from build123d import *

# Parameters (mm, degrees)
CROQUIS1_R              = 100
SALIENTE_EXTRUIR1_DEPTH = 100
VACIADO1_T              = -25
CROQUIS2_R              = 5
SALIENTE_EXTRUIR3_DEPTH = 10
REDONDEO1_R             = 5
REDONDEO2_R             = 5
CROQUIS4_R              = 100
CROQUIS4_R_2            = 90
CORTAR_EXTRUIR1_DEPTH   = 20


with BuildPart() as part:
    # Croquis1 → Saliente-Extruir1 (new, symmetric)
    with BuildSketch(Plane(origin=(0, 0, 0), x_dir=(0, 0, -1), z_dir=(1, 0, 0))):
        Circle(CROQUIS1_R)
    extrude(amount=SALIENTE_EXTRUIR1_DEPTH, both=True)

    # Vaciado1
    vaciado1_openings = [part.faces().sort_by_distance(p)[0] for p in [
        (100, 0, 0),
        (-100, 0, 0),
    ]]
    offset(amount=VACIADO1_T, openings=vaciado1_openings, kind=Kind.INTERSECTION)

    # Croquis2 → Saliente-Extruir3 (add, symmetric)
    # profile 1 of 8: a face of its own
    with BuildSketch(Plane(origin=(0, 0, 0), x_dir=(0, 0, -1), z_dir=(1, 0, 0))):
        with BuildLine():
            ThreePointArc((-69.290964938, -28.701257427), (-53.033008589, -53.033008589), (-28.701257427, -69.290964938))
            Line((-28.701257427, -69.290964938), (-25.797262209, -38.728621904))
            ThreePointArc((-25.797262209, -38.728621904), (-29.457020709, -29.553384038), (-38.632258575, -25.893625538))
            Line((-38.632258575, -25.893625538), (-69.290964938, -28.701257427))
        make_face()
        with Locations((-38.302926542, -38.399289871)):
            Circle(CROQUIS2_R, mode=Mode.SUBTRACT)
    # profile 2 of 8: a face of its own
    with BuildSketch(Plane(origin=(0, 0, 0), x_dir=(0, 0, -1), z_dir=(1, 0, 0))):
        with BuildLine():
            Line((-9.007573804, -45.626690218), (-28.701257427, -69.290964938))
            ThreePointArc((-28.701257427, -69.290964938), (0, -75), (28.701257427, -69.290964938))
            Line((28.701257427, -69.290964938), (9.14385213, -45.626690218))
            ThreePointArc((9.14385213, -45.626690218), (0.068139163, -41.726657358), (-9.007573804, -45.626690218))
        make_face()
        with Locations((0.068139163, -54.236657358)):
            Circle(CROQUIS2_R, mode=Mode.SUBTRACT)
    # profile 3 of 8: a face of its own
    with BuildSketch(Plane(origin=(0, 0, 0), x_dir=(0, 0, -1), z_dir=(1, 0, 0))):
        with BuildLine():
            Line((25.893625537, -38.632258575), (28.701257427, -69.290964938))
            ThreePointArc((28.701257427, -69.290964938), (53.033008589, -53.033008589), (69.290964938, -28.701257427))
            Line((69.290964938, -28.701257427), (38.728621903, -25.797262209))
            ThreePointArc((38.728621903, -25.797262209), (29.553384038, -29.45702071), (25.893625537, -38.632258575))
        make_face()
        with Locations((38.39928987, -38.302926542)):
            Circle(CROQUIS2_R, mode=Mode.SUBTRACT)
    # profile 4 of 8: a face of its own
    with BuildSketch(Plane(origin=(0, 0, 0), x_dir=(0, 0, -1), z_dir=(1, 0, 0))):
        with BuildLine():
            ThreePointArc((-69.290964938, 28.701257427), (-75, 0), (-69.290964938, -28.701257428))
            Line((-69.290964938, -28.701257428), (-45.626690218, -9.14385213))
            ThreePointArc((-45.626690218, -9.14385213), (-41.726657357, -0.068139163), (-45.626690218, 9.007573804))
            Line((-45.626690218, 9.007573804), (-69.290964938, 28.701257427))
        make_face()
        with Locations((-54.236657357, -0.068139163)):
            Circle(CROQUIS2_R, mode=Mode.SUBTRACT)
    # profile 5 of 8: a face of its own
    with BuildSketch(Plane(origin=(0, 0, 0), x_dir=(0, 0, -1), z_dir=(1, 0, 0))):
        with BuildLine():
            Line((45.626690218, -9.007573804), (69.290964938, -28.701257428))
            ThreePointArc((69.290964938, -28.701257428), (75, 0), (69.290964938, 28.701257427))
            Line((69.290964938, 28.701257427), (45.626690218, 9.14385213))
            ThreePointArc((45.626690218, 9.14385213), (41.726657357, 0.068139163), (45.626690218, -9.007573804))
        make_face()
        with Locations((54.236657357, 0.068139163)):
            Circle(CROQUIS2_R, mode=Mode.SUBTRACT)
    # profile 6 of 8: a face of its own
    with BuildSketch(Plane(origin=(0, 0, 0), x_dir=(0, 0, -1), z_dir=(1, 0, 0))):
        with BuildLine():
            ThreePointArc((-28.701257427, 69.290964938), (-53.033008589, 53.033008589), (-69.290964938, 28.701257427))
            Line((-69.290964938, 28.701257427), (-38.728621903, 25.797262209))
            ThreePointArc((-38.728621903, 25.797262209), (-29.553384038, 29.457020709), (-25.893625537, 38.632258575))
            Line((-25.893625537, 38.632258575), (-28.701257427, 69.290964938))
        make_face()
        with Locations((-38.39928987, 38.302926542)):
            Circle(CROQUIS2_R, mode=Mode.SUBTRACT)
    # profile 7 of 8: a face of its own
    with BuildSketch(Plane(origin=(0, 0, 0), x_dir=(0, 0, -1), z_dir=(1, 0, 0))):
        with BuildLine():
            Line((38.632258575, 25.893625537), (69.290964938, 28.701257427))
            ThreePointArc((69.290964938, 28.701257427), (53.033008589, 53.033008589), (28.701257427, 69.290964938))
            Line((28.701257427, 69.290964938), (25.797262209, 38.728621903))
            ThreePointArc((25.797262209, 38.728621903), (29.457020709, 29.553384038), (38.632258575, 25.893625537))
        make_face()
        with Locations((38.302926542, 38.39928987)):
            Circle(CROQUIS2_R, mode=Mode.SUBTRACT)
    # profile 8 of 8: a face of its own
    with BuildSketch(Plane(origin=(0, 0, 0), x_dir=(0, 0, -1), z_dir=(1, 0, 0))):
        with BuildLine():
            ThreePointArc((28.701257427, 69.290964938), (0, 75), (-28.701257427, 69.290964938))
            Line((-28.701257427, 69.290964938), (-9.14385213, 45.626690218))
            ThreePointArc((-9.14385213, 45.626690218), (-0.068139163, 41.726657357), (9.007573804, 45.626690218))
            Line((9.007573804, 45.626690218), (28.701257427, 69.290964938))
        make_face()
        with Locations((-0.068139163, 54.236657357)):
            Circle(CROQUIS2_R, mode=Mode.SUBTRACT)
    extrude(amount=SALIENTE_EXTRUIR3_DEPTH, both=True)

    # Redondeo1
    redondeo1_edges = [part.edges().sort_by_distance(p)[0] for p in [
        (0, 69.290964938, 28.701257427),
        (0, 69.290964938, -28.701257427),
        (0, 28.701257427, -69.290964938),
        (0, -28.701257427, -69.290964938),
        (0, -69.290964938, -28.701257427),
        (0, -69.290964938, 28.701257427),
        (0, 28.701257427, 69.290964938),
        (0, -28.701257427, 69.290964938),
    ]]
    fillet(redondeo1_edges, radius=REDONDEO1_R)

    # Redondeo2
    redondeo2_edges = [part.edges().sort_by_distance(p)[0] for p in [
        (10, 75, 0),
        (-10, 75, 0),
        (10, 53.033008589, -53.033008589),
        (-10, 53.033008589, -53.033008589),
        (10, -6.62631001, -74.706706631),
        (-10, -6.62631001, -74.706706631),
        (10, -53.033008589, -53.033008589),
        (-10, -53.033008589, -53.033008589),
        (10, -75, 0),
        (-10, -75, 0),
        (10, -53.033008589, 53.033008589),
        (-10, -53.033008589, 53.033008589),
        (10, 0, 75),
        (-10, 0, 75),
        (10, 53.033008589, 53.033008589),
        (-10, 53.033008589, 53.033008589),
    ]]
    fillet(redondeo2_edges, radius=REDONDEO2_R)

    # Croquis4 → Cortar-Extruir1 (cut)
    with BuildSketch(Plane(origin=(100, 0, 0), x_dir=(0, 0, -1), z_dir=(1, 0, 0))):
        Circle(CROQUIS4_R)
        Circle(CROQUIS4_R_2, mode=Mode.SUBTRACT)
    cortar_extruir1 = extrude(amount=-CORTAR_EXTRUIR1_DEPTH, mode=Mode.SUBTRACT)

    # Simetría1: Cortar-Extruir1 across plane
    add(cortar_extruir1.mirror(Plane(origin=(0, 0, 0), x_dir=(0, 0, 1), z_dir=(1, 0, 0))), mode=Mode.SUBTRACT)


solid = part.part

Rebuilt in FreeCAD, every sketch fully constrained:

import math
import FreeCAD as App
import Part
import Sketcher

V = App.Vector


def edges_at(feature, points):
    """Names of the edges that pass closest to the given points."""
    edges = feature.Shape.Edges
    near = lambda p: min(range(len(edges)), key=lambda i: edges[i].distToShape(Part.Vertex(*p))[0])
    return sorted({f"Edge{near(p) + 1}" for p in points})


def faces_at(feature, points):
    """Names of the faces that lie closest to the given points."""
    faces = feature.Shape.Faces
    near = lambda p: min(range(len(faces)), key=lambda i: faces[i].distToShape(Part.Vertex(*p))[0])
    return sorted({f"Face{near(p) + 1}" for p in points})

doc = App.newDocument("Part")
params = doc.addObject("Spreadsheet::Sheet", "Params")
for row, (alias, value) in enumerate([
    ("sketch1_diameter", "200 mm"),
    ("pad1_length", "200 mm"),
    ("thickness_wall", "25 mm"),
    ("sketch2_diameter", "10 mm"),
    ("sketch2_radius", "75 mm"),
    ("sketch2_radius2", "12.51 mm"),
    ("sketch2_length", "30.7 mm"),
    ("pad2_length", "20 mm"),
    ("fillet_radius", "5 mm"),
    ("fillet2_radius", "5 mm"),
    ("sketch3_diameter", "200 mm"),
    ("sketch3_diameter2", "180 mm"),
    ("pocket1_length", "20 mm"),
], start=1):
    params.set(f"A{row}", alias)
    params.set(f"B{row}", "=" + value)
    params.setAlias(f"B{row}", alias)

body = doc.addObject("PartDesign::Body", "Body")

# Sketch on YZ plane
sketch1 = body.newObject("Sketcher::SketchObject", "Sketch")
sketch1.AttachmentSupport = (doc.getObject("YZ_Plane"), [""])
sketch1.MapMode = "FlatFace"
sketch1.addGeometry(Part.Circle(V(0, 0, 0), V(0, 0, 1), 100), False)
sketch1.addConstraint([
    Sketcher.Constraint("Coincident", 0, 3, -1, 1),
    Sketcher.Constraint("Diameter", 0, 200.0),
])
sketch1.setExpression("Constraints[1]", "Params.sketch1_diameter")
pad1 = body.newObject("PartDesign::Pad", "Pad")
pad1.Profile = sketch1
pad1.setExpression("Length", "Params.pad1_length")
pad1.Midplane = True
doc.recompute()

thickness = body.newObject("PartDesign::Thickness", "Thickness")
thickness.Base = (pad1, faces_at(pad1, [(100, 0, 0), (-100, 0, 0)]))
thickness.setExpression("Value", "Params.thickness_wall")
thickness.Reversed = True
thickness.Join = "Intersection"

# Sketch on YZ plane
sketch2 = body.newObject("Sketcher::SketchObject", "Sketch001")
sketch2.AttachmentSupport = (doc.getObject("YZ_Plane"), [""])
sketch2.MapMode = "FlatFace"
sketch2.addGeometry([
    Part.ArcOfCircle(Part.Circle(V(0, 0, 0), V(0, 0, 1), 75), math.radians(112), math.radians(158)),  # 0
    Part.LineSegment(V(-69, 29, 0), V(-39, 26, 0)),  # 1
    Part.ArcOfCircle(Part.Circle(V(-38, 38, 0), V(0, 0, 1), 13), math.radians(-92), math.radians(2)),  # 2
    Part.LineSegment(V(-26, 39, 0), V(-29, 69, 0)),  # 3
    Part.Circle(V(-38, 38, 0), V(0, 0, 1), 5),  # 4
    Part.LineSegment(V(-46, 9, 0), V(-69, 29, 0)),  # 5
    Part.ArcOfCircle(Part.Circle(V(0, 0, 0), V(0, 0, 1), 75), math.radians(157), math.radians(203)),  # 6
    Part.LineSegment(V(-69, -29, 0), V(-46, -9, 0)),  # 7
    Part.ArcOfCircle(Part.Circle(V(-54, 0, 0), V(0, 0, 1), 13), math.radians(-47), math.radians(47)),  # 8
    Part.Circle(V(-54, 0, 0), V(0, 0, 1), 5),  # 9
    Part.LineSegment(V(-39, -26, 0), V(-69, -29, 0)),  # 10
    Part.ArcOfCircle(Part.Circle(V(0, 0, 0), V(0, 0, 1), 75), math.radians(-158), math.radians(-112)),  # 11
    Part.LineSegment(V(-29, -69, 0), V(-26, -39, 0)),  # 12
    Part.ArcOfCircle(Part.Circle(V(-38, -38, 0), V(0, 0, 1), 13), math.radians(-2), math.radians(92)),  # 13
    Part.Circle(V(-38, -38, 0), V(0, 0, 1), 5),  # 14
    Part.ArcOfCircle(Part.Circle(V(0, 0, 0), V(0, 0, 1), 75), math.radians(67), math.radians(113)),  # 15
    Part.LineSegment(V(-29, 69, 0), V(-9, 46, 0)),  # 16
    Part.ArcOfCircle(Part.Circle(V(0, 54, 0), V(0, 0, 1), 13), math.radians(-137), math.radians(-43)),  # 17
    Part.LineSegment(V(9, 46, 0), V(29, 69, 0)),  # 18
    Part.Circle(V(0, 54, 0), V(0, 0, 1), 5),  # 19
    Part.LineSegment(V(-9, -46, 0), V(-29, -69, 0)),  # 20
    Part.ArcOfCircle(Part.Circle(V(0, 0, 0), V(0, 0, 1), 75), math.radians(-113), math.radians(-67)),  # 21
    Part.LineSegment(V(29, -69, 0), V(9, -46, 0)),  # 22
    Part.ArcOfCircle(Part.Circle(V(0, -54, 0), V(0, 0, 1), 13), math.radians(43), math.radians(137)),  # 23
    Part.Circle(V(0, -54, 0), V(0, 0, 1), 5),  # 24
    Part.ArcOfCircle(Part.Circle(V(0, 0, 0), V(0, 0, 1), 75), math.radians(22), math.radians(68)),  # 25
    Part.LineSegment(V(29, 69, 0), V(26, 39, 0)),  # 26
    Part.ArcOfCircle(Part.Circle(V(38, 38, 0), V(0, 0, 1), 13), math.radians(178), math.radians(272)),  # 27
    Part.LineSegment(V(39, 26, 0), V(69, 29, 0)),  # 28
    Part.Circle(V(38, 38, 0), V(0, 0, 1), 5),  # 29
    Part.LineSegment(V(26, -39, 0), V(29, -69, 0)),  # 30
    Part.ArcOfCircle(Part.Circle(V(0, 0, 0), V(0, 0, 1), 75), math.radians(-68), math.radians(-22)),  # 31
    Part.LineSegment(V(69, -29, 0), V(39, -26, 0)),  # 32
    Part.ArcOfCircle(Part.Circle(V(38, -38, 0), V(0, 0, 1), 13), math.radians(88), math.radians(182)),  # 33
    Part.Circle(V(38, -38, 0), V(0, 0, 1), 5),  # 34
    Part.ArcOfCircle(Part.Circle(V(0, 0, 0), V(0, 0, 1), 75), math.radians(-23), math.radians(23)),  # 35
    Part.LineSegment(V(69, 29, 0), V(46, 9, 0)),  # 36
    Part.ArcOfCircle(Part.Circle(V(54, 0, 0), V(0, 0, 1), 13), math.radians(133), math.radians(227)),  # 37
    Part.LineSegment(V(46, -9, 0), V(69, -29, 0)),  # 38
    Part.Circle(V(54, 0, 0), V(0, 0, 1), 5),  # 39
], False)
sketch2.addConstraint([
    Sketcher.Constraint("Coincident", 0, 2, 1, 1),
    Sketcher.Constraint("Coincident", 1, 2, 2, 1),
    Sketcher.Constraint("Coincident", 2, 2, 3, 1),
    Sketcher.Constraint("Coincident", 3, 2, 0, 1),
    Sketcher.Constraint("Coincident", 5, 2, 6, 1),
    Sketcher.Constraint("Coincident", 6, 2, 7, 1),
    Sketcher.Constraint("Coincident", 7, 2, 8, 1),
    Sketcher.Constraint("Coincident", 8, 2, 5, 1),
    Sketcher.Constraint("Coincident", 10, 2, 11, 1),
    Sketcher.Constraint("Coincident", 11, 2, 12, 1),
    Sketcher.Constraint("Coincident", 12, 2, 13, 1),
    Sketcher.Constraint("Coincident", 13, 2, 10, 1),
    Sketcher.Constraint("Coincident", 15, 2, 16, 1),
    Sketcher.Constraint("Coincident", 16, 2, 17, 1),
    Sketcher.Constraint("Coincident", 17, 2, 18, 1),
    Sketcher.Constraint("Coincident", 18, 2, 15, 1),
    Sketcher.Constraint("Coincident", 20, 2, 21, 1),
    Sketcher.Constraint("Coincident", 21, 2, 22, 1),
    Sketcher.Constraint("Coincident", 22, 2, 23, 1),
    Sketcher.Constraint("Coincident", 23, 2, 20, 1),
    Sketcher.Constraint("Coincident", 25, 2, 26, 1),
    Sketcher.Constraint("Coincident", 26, 2, 27, 1),
    Sketcher.Constraint("Coincident", 27, 2, 28, 1),
    Sketcher.Constraint("Coincident", 28, 2, 25, 1),
    Sketcher.Constraint("Coincident", 30, 2, 31, 1),
    Sketcher.Constraint("Coincident", 31, 2, 32, 1),
    Sketcher.Constraint("Coincident", 32, 2, 33, 1),
    Sketcher.Constraint("Coincident", 33, 2, 30, 1),
    Sketcher.Constraint("Coincident", 35, 2, 36, 1),
    Sketcher.Constraint("Coincident", 36, 2, 37, 1),
    Sketcher.Constraint("Coincident", 37, 2, 38, 1),
    Sketcher.Constraint("Coincident", 38, 2, 35, 1),
    Sketcher.Constraint("Coincident", 0, 3, -1, 1),
    Sketcher.Constraint("Coincident", 6, 3, -1, 1),
    Sketcher.Constraint("Coincident", 11, 3, -1, 1),
    Sketcher.Constraint("Coincident", 15, 3, -1, 1),
    Sketcher.Constraint("Coincident", 21, 3, -1, 1),
    Sketcher.Constraint("Coincident", 25, 3, -1, 1),
    Sketcher.Constraint("Coincident", 31, 3, -1, 1),
    Sketcher.Constraint("Coincident", 35, 3, -1, 1),
    Sketcher.Constraint("Coincident", 4, 3, 2, 3),
    Sketcher.Constraint("Coincident", 9, 3, 8, 3),
    Sketcher.Constraint("Coincident", 14, 3, 13, 3),
    Sketcher.Constraint("Coincident", 19, 3, 17, 3),
    Sketcher.Constraint("Coincident", 24, 3, 23, 3),
    Sketcher.Constraint("Coincident", 29, 3, 27, 3),
    Sketcher.Constraint("Coincident", 34, 3, 33, 3),
    Sketcher.Constraint("Coincident", 39, 3, 37, 3),
    Sketcher.Constraint("Coincident", 5, 2, 0, 2),
    Sketcher.Constraint("Coincident", 10, 2, 6, 2),
    Sketcher.Constraint("Coincident", 15, 2, 3, 2),
    Sketcher.Constraint("Coincident", 20, 2, 11, 2),
    Sketcher.Constraint("Coincident", 25, 2, 18, 2),
    Sketcher.Constraint("Coincident", 30, 2, 21, 2),
    Sketcher.Constraint("Coincident", 35, 2, 28, 2),
    Sketcher.Constraint("Equal", 2, 8),
    Sketcher.Constraint("Equal", 4, 9),
    Sketcher.Constraint("Equal", 8, 13),
    Sketcher.Constraint("Equal", 9, 14),
    Sketcher.Constraint("Equal", 13, 17),
    Sketcher.Constraint("Equal", 14, 19),
    Sketcher.Constraint("Equal", 17, 23),
    Sketcher.Constraint("Equal", 19, 24),
    Sketcher.Constraint("Equal", 23, 27),
    Sketcher.Constraint("Equal", 24, 29),
    Sketcher.Constraint("Equal", 27, 33),
    Sketcher.Constraint("Equal", 29, 34),
    Sketcher.Constraint("Equal", 33, 37),
    Sketcher.Constraint("Equal", 34, 39),
    Sketcher.Constraint("Symmetric", 17, 3, 23, 3, -1, 1),
    Sketcher.Constraint("Symmetric", 13, 3, 27, 3, -1, 1),
    Sketcher.Constraint("Symmetric", 2, 3, 33, 3, -1, 1),
    Sketcher.Constraint("Symmetric", 8, 3, 37, 3, -1, 1),
    Sketcher.Constraint("Perpendicular", 3, 10),
    Sketcher.Constraint("Perpendicular", 1, 12),
    Sketcher.Constraint("Perpendicular", 7, 16),
    Sketcher.Constraint("Perpendicular", 5, 18),
    Sketcher.Constraint("Parallel", 18, 20),
    Sketcher.Constraint("Parallel", 16, 22),
    Sketcher.Constraint("Parallel", 12, 26),
    Sketcher.Constraint("Parallel", 10, 28),
    Sketcher.Constraint("Perpendicular", 28, 30),
    Sketcher.Constraint("Perpendicular", 26, 32),
    Sketcher.Constraint("Perpendicular", 22, 36),
    Sketcher.Constraint("Perpendicular", 20, 38),
    Sketcher.Constraint("Horizontal", 16, 2, 17, 2),
    Sketcher.Constraint("Horizontal", 15, 2, 18, 2),
    Sketcher.Constraint("Horizontal", 22, 2, 23, 2),
    Sketcher.Constraint("Horizontal", 5, 2, 28, 2),
    Sketcher.Constraint("Horizontal", 10, 2, 38, 2),
    Sketcher.Constraint("Vertical", 7, 2, 8, 2),
    Sketcher.Constraint("Vertical", 5, 2, 10, 2),
    Sketcher.Constraint("Equal", 3, 5),
    Sketcher.Constraint("Equal", 1, 7),
    Sketcher.Constraint("Equal", 5, 10),
    Sketcher.Constraint("Equal", 7, 12),
    Sketcher.Constraint("Equal", 12, 16),
    Sketcher.Constraint("Equal", 18, 20),
    Sketcher.Constraint("Equal", 26, 32),
    Sketcher.Constraint("Diameter", 4, 10.0),
    Sketcher.Constraint("Radius", 0, 75.0),
    Sketcher.Constraint("Radius", 2, 12.51),
    Sketcher.Constraint("Distance", 1, 30.7),
    Sketcher.Constraint("DistanceY", 0, 2, 17, 3, 25.5354),
    Sketcher.Constraint("DistanceY", 9, 3, 1, 2, 25.865401),
    Sketcher.Constraint("DistanceY", 2, 2, 17, 3, 15.604399),
    Sketcher.Constraint("DistanceX", 8, 2, 2, 3, 7.2274),
    Sketcher.Constraint("DistanceX", 12, 2, 23, 3, 25.865401),
    Sketcher.Constraint("DistanceX", 2, 3, -1, 1, 38.39929),
])
sketch2.setExpression("Constraints[99]", "Params.sketch2_diameter")
sketch2.setExpression("Constraints[100]", "Params.sketch2_radius")
sketch2.setExpression("Constraints[101]", "Params.sketch2_radius2")
sketch2.setExpression("Constraints[102]", "Params.sketch2_length")
pad2 = body.newObject("PartDesign::Pad", "Pad001")
pad2.Profile = sketch2
pad2.setExpression("Length", "Params.pad2_length")
pad2.Midplane = True
doc.recompute()

fillet = body.newObject("PartDesign::Fillet", "Fillet")
fillet.Base = (pad2, edges_at(pad2, [
    (0, 69.291, 28.701),
    (0, 69.291, -28.701),
    (0, 28.701, -69.291),
    (0, -28.701, -69.291),
    (0, -69.291, -28.701),
    (0, -69.291, 28.701),
    (0, 28.701, 69.291),
    (0, -28.701, 69.291),
]))
fillet.setExpression("Radius", "Params.fillet_radius")
doc.recompute()

fillet2 = body.newObject("PartDesign::Fillet", "Fillet001")
fillet2.Base = (fillet, edges_at(fillet, [
    (10, 75, 0),
    (-10, 75, 0),
    (10, 53.033, -53.033),
    (-10, 53.033, -53.033),
    (10, -6.626, -74.707),
    (-10, -6.626, -74.707),
    (10, -53.033, -53.033),
    (-10, -53.033, -53.033),
    (10, -75, 0),
    (-10, -75, 0),
    (10, -53.033, 53.033),
    (-10, -53.033, 53.033),
    (10, 0, 75),
    (-10, 0, 75),
    (10, 53.033, 53.033),
    (-10, 53.033, 53.033),
]))
fillet2.setExpression("Radius", "Params.fillet2_radius")

# Sketch on YZ plane
sketch3 = body.newObject("Sketcher::SketchObject", "Sketch002")
sketch3.AttachmentSupport = (doc.getObject("YZ_Plane"), [""])
sketch3.MapMode = "FlatFace"
sketch3.AttachmentOffset = App.Placement(V(0, 0, 100), App.Rotation())
sketch3.addGeometry([
    Part.Circle(V(0, 0, 0), V(0, 0, 1), 100),
    Part.Circle(V(0, 0, 0), V(0, 0, 1), 90),
], False)
sketch3.addConstraint([
    Sketcher.Constraint("Coincident", 0, 3, -1, 1),
    Sketcher.Constraint("Coincident", 1, 3, -1, 1),
    Sketcher.Constraint("Diameter", 0, 200.0),
    Sketcher.Constraint("Diameter", 1, 180.0),
])
sketch3.setExpression("Constraints[2]", "Params.sketch3_diameter")
sketch3.setExpression("Constraints[3]", "Params.sketch3_diameter2")
pocket1 = body.newObject("PartDesign::Pocket", "Pocket")
pocket1.Profile = sketch3
pocket1.setExpression("Length", "Params.pocket1_length")
doc.recompute()

mirrored = body.newObject("PartDesign::Mirrored", "Mirrored")
mirrored.Originals = [pocket1]
mirrored.MirrorPlane = (doc.getObject("YZ_Plane"), [""])
body.Tip = mirrored

doc.recompute()
